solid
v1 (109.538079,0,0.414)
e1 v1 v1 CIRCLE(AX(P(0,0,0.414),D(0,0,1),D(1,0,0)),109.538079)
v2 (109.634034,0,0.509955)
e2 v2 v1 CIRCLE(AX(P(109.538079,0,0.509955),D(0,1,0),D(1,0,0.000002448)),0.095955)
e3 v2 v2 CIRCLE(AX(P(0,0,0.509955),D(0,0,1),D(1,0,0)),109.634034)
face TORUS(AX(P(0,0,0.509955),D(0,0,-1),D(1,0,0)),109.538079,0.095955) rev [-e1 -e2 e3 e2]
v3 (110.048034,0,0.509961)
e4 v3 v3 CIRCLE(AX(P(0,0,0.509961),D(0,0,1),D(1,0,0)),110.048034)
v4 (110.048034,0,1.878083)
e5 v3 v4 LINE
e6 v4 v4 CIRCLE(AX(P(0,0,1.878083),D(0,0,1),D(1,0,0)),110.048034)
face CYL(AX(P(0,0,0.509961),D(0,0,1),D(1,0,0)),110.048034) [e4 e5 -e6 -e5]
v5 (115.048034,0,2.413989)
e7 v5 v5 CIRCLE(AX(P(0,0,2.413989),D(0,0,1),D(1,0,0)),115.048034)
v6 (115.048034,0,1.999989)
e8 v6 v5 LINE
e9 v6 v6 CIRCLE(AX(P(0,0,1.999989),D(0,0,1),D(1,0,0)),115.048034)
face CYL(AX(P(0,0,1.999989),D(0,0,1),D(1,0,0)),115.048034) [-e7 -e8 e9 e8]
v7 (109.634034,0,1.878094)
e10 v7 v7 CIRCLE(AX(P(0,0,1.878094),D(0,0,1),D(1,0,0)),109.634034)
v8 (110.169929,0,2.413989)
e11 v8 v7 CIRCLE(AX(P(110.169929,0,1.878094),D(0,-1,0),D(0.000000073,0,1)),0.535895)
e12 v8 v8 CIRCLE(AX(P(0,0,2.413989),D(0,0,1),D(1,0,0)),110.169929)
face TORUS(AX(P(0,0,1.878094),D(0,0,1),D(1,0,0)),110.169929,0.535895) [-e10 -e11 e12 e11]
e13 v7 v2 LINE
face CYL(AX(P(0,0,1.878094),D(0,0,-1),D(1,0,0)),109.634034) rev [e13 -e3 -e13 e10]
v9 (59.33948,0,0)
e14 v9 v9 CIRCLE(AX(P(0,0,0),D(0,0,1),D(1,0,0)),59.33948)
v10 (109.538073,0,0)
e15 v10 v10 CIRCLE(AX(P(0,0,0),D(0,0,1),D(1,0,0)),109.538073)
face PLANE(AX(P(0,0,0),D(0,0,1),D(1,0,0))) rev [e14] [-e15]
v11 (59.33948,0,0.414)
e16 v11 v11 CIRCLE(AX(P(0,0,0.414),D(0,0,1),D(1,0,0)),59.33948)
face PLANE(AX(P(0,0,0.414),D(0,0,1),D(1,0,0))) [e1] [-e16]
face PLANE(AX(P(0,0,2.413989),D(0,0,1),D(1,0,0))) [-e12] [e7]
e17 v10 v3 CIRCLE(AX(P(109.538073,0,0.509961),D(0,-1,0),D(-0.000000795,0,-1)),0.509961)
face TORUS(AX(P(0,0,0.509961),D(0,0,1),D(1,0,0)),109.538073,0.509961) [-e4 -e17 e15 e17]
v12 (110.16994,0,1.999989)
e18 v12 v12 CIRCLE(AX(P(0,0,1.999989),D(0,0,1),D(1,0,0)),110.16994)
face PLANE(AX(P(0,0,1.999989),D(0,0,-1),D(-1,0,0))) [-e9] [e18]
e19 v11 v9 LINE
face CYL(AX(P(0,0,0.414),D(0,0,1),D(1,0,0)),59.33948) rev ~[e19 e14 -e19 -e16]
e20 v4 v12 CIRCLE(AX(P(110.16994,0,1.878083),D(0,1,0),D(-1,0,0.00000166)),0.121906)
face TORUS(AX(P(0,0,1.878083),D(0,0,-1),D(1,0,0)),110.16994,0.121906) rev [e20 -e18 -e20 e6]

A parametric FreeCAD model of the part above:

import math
import FreeCAD as App
import Part
import Sketcher

V = App.Vector
Q = App.Units.Quantity

doc = App.newDocument("Part")
params = doc.addObject("Spreadsheet::Sheet", "Params")
for row, (alias, value) in enumerate([
    ("revolution_angle", "360 deg"),
    ("pocket1_length", "1 in"),
], start=1):
    params.set(f"A{row}", alias)
    params.set(f"B{row}", "=" + value)
    params.setAlias(f"B{row}", alias)

body = doc.addObject("PartDesign::Body", "Body")

sketch1 = body.newObject("Sketcher::SketchObject", "Sketch")
sketch1.AttachmentSupport = (doc.getObject("XZ_Plane"), [""])
sketch1.MapMode = "FlatFace"
sketch1.addGeometry(Part.LineSegment(V(0, 0.414, 0), V(0, 0, 0)), False)
sketch1.addGeometry(Part.LineSegment(V(0, 0, 0), V(109.538073, 0, 0)), False)
sketch1.addGeometry(Part.ArcOfCircle(Part.Circle(V(109.538073, 0.509961, 0), V(0, 0, 1), 0.509961), math.radians(-90.000046), math.radians(0.000046)), False)
sketch1.addGeometry(Part.LineSegment(V(110.048034, 0.509961, 0), V(110.048034, 1.878083, 0)), False)
sketch1.addGeometry(Part.ArcOfCircle(Part.Circle(V(110.16994, 1.878083, 0), V(0, 0, 1), 0.121906), math.radians(90.000095), math.radians(179.999905)), False)
sketch1.addGeometry(Part.LineSegment(V(110.16994, 1.999989, 0), V(115.048034, 1.999989, 0)), False)
sketch1.addGeometry(Part.LineSegment(V(115.048034, 1.999989, 0), V(115.048034, 2.413989, 0)), False)
sketch1.addGeometry(Part.LineSegment(V(115.048034, 2.413989, 0), V(110.169929, 2.413989, 0)), False)
sketch1.addGeometry(Part.ArcOfCircle(Part.Circle(V(110.169929, 1.878094, 0), V(0, 0, 1), 0.535895), math.radians(89.999996), math.radians(180.000004)), False)
sketch1.addGeometry(Part.LineSegment(V(109.634034, 1.878094, 0), V(109.634034, 0.509955, 0)), False)
sketch1.addGeometry(Part.ArcOfCircle(Part.Circle(V(109.538079, 0.509955, 0), V(0, 0, 1), 0.095955), math.radians(-90.00014), math.radians(0.00014)), False)
sketch1.addGeometry(Part.LineSegment(V(109.538079, 0.414, 0), V(0, 0.414, 0)), False)
sketch1.addConstraint(Sketcher.Constraint("Coincident", 0, 2, 1, 1))
sketch1.addConstraint(Sketcher.Constraint("Tangent", 1, 2, 2, 1))
sketch1.addConstraint(Sketcher.Constraint("Tangent", 2, 2, 3, 1))
sketch1.addConstraint(Sketcher.Constraint("Tangent", 3, 2, 4, 2))
sketch1.addConstraint(Sketcher.Constraint("Tangent", 4, 1, 5, 1))
sketch1.addConstraint(Sketcher.Constraint("Coincident", 5, 2, 6, 1))
sketch1.addConstraint(Sketcher.Constraint("Coincident", 6, 2, 7, 1))
sketch1.addConstraint(Sketcher.Constraint("Tangent", 7, 2, 8, 1))
sketch1.addConstraint(Sketcher.Constraint("Tangent", 8, 2, 9, 1))
sketch1.addConstraint(Sketcher.Constraint("Coincident", 9, 2, 10, 2))
sketch1.addConstraint(Sketcher.Constraint("Coincident", 10, 1, 11, 1))
sketch1.addConstraint(Sketcher.Constraint("Coincident", 11, 2, 0, 1))
sketch1.addConstraint(Sketcher.Constraint("Vertical", 0))
sketch1.addConstraint(Sketcher.Constraint("Horizontal", 1))
sketch1.addConstraint(Sketcher.Constraint("Vertical", 3))
sketch1.addConstraint(Sketcher.Constraint("Horizontal", 5))
sketch1.addConstraint(Sketcher.Constraint("Vertical", 6))
sketch1.addConstraint(Sketcher.Constraint("Horizontal", 7))
sketch1.addConstraint(Sketcher.Constraint("Vertical", 9))
sketch1.addConstraint(Sketcher.Constraint("Horizontal", 11))
sketch1.addConstraint(Sketcher.Constraint("Coincident", 0, 2, -1, 1))
sketch1.addConstraint(Sketcher.Constraint("Coincident", 10, 3, 2, 3))
sketch1.addConstraint(Sketcher.Constraint("Horizontal", 10, 3, 9, 2))
sketch1.addConstraint(Sketcher.Constraint("Equal", 0, 6))
sketch1.addConstraint(Sketcher.Constraint("Radius", 2, Q("0.509961 mm")))
sketch1.addConstraint(Sketcher.Constraint("DistanceY", 0, 2, 0, 1, Q("0.414 mm")))
sketch1.addConstraint(Sketcher.Constraint("Radius", 4, Q("0.121906 mm")))
sketch1.addConstraint(Sketcher.Constraint("Radius", 8, Q("0.535895 mm")))
sketch1.addConstraint(Sketcher.Constraint("DistanceX", 11, 2, 11, 1, Q("109.538079 mm")))
sketch1.addConstraint(Sketcher.Constraint("DistanceY", 9, 2, 9, 1, Q("1.368139 mm")))
sketch1.addConstraint(Sketcher.Constraint("DistanceX", 3, 2, 5, 2, Q("5 mm")))
sketch1.addConstraint(Sketcher.Constraint("DistanceX", 1, 1, 1, 2, Q("109.538073 mm")))
revolution = body.newObject("PartDesign::Revolution", "Revolution")
revolution.Profile = sketch1
revolution.ReferenceAxis = (sketch1, ["V_Axis"])
revolution.setExpression("Angle", "Params.revolution_angle")

sketch2 = body.newObject("Sketcher::SketchObject", "Sketch001")
sketch2.AttachmentSupport = (doc.getObject("XY_Plane"), [""])
sketch2.MapMode = "FlatFace"
sketch2.AttachmentOffset = App.Placement(V(0, 0, 0.414), App.Rotation())
sketch2.addGeometry(Part.Circle(V(0, 0, 0), V(0, 0, 1), 59.33948), False)
sketch2.addConstraint(Sketcher.Constraint("Coincident", 0, 3, -1, 1))
sketch2.addConstraint(Sketcher.Constraint("Diameter", 0, Q("4.6724 in")))
pocket1 = body.newObject("PartDesign::Pocket", "Pocket")
pocket1.Profile = sketch2
pocket1.setExpression("Length", "Params.pocket1_length")

doc.recompute()
